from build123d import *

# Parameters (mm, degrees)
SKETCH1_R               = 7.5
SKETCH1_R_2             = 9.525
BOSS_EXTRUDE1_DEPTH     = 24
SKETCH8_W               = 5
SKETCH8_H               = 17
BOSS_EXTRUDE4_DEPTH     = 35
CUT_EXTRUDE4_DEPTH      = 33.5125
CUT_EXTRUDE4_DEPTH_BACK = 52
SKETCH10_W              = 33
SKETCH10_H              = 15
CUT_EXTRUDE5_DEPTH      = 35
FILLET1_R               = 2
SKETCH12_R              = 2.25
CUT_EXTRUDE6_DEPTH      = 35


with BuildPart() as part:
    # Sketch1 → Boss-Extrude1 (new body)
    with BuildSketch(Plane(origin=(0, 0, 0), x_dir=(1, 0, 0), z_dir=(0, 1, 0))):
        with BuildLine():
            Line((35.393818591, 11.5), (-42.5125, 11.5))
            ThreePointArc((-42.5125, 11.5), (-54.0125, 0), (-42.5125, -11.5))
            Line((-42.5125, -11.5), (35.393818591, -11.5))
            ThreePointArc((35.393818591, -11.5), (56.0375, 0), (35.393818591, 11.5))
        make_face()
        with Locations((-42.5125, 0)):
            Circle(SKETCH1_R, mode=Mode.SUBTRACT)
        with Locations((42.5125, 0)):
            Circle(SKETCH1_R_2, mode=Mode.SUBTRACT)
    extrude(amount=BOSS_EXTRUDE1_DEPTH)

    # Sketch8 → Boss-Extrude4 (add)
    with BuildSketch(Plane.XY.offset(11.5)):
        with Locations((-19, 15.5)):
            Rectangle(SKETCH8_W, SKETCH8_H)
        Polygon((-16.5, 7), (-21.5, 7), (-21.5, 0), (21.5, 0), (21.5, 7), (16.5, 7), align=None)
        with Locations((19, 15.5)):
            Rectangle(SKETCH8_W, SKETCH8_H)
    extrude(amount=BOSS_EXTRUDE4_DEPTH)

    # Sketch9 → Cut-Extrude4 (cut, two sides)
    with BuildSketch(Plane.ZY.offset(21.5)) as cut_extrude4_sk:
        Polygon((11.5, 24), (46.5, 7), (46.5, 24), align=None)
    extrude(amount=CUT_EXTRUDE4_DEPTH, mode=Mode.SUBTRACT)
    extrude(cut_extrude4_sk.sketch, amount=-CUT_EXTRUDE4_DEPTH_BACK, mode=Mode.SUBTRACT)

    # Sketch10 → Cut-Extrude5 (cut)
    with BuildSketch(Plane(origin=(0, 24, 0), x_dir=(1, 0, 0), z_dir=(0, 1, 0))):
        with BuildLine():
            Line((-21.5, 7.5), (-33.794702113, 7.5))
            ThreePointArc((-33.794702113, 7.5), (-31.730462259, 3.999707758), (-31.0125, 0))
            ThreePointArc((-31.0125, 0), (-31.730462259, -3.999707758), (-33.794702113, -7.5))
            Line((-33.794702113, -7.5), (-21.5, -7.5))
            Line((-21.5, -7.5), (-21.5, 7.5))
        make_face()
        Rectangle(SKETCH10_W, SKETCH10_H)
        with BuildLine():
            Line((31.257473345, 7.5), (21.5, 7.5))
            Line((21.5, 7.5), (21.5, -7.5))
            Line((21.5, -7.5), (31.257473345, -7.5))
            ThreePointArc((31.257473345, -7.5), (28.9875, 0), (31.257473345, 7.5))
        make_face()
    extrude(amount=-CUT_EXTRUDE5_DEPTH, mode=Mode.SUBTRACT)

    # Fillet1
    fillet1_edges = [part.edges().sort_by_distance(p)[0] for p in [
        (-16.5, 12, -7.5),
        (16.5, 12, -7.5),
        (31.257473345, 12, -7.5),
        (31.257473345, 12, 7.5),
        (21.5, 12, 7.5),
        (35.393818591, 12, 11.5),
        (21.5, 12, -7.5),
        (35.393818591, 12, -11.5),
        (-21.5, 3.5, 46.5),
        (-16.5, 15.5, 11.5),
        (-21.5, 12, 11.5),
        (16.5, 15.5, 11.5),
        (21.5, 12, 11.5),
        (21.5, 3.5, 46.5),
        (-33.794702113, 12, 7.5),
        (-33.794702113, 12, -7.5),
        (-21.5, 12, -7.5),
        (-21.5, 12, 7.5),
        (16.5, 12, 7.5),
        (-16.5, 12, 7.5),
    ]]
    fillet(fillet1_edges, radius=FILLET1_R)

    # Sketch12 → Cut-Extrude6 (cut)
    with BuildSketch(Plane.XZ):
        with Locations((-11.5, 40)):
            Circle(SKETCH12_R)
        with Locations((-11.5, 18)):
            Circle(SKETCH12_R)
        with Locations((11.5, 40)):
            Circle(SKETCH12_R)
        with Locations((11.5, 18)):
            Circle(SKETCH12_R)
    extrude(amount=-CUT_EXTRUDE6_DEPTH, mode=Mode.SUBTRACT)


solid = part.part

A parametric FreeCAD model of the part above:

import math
import FreeCAD as App
import Part
import Sketcher
from FreeCAD import Vector


def edges_at(feature, points):
    """Names of the edges that pass closest to the given points."""
    edges = feature.Shape.Edges
    near = lambda p: min(range(len(edges)), key=lambda i: edges[i].distToShape(Part.Vertex(*p))[0])
    return sorted({f"Edge{near(p) + 1}" for p in points})

doc = App.newDocument("Part")
body = doc.addObject("PartDesign::Body", "Body")

# Sketch on XZ plane
sketch1 = body.newObject("Sketcher::SketchObject", "Sketch")
sketch1.AttachmentSupport = (doc.getObject("XZ_Plane"), [""])
sketch1.MapMode = "FlatFace"
sketch1.addGeometry([
    Part.LineSegment(Vector(35, -12, 0), Vector(-43, -12, 0)),  # 0
    Part.ArcOfCircle(Part.Circle(Vector(-43, 0, 0), Vector(0, 0, 1), 12), math.radians(90), math.radians(270)),  # 1
    Part.LineSegment(Vector(-43, 12, 0), Vector(35, 12, 0)),  # 2
    Part.ArcOfCircle(Part.Circle(Vector(43, 0, 0), Vector(0, 0, 1), 14), math.radians(-122), math.radians(122)),  # 3
    Part.Circle(Vector(-43, 0, 0), Vector(0, 0, 1), 8),  # 4
    Part.Circle(Vector(43, 0, 0), Vector(0, 0, 1), 10),  # 5
], False)
sketch1.addConstraint([
    Sketcher.Constraint("Tangent", 0, 2, 1, 2),
    Sketcher.Constraint("Tangent", 1, 1, 2, 1),
    Sketcher.Constraint("Coincident", 2, 2, 3, 2),
    Sketcher.Constraint("Coincident", 3, 1, 0, 1),
    Sketcher.Constraint("Horizontal", 0),
    Sketcher.Constraint("Horizontal", 2),
    Sketcher.Constraint("Coincident", 4, 3, 1, 3),
    Sketcher.Constraint("Coincident", 5, 3, 3, 3),
    Sketcher.Constraint("Symmetric", 1, 3, 3, 3, -1, 1),
    Sketcher.Constraint("PointOnObject", 1, 3, -1),
    Sketcher.Constraint("Diameter", 4, 15.0),
    Sketcher.Constraint("Radius", 1, 11.5),
    Sketcher.Constraint("Diameter", 5, 19.05),
    Sketcher.Constraint("Radius", 3, 13.525),
    Sketcher.Constraint("DistanceX", 1, 3, 3, 3, 85.025),
])
pad1 = body.newObject("PartDesign::Pad", "Pad")
pad1.Profile = sketch1
pad1.Length = 24
pad1.Reversed = True

# Sketch on XY plane
sketch2 = body.newObject("Sketcher::SketchObject", "Sketch001")
sketch2.AttachmentSupport = (doc.getObject("XY_Plane"), [""])
sketch2.MapMode = "FlatFace"
sketch2.AttachmentOffset = App.Placement(Vector(0, 0, 11.5), App.Rotation())
sketch2.addGeometry([
    Part.LineSegment(Vector(-22, 24, 0), Vector(-22, 0, 0)),  # 0
    Part.LineSegment(Vector(-22, 0, 0), Vector(22, 0, 0)),  # 1
    Part.LineSegment(Vector(22, 0, 0), Vector(22, 24, 0)),  # 2
    Part.LineSegment(Vector(22, 24, 0), Vector(16, 24, 0)),  # 3
    Part.LineSegment(Vector(16, 24, 0), Vector(16, 7, 0)),  # 4
    Part.LineSegment(Vector(16, 7, 0), Vector(-16, 7, 0)),  # 5
    Part.LineSegment(Vector(-16, 7, 0), Vector(-16, 24, 0)),  # 6
    Part.LineSegment(Vector(-16, 24, 0), Vector(-22, 24, 0)),  # 7
], False)
sketch2.addConstraint([
    Sketcher.Constraint("Coincident", 0, 2, 1, 1),
    Sketcher.Constraint("Coincident", 1, 2, 2, 1),
    Sketcher.Constraint("Coincident", 2, 2, 3, 1),
    Sketcher.Constraint("Coincident", 3, 2, 4, 1),
    Sketcher.Constraint("Coincident", 4, 2, 5, 1),
    Sketcher.Constraint("Coincident", 5, 2, 6, 1),
    Sketcher.Constraint("Coincident", 6, 2, 7, 1),
    Sketcher.Constraint("Coincident", 7, 2, 0, 1),
    Sketcher.Constraint("Vertical", 0),
    Sketcher.Constraint("Horizontal", 1),
    Sketcher.Constraint("Vertical", 2),
    Sketcher.Constraint("Horizontal", 3),
    Sketcher.Constraint("Vertical", 4),
    Sketcher.Constraint("Horizontal", 5),
    Sketcher.Constraint("Vertical", 6),
    Sketcher.Constraint("Horizontal", 7),
    Sketcher.Constraint("Symmetric", 0, 2, 1, 2, -1, 1),
    Sketcher.Constraint("Symmetric", 3, 2, 6, 2, -2),
    Sketcher.Constraint("DistanceX", 1, 1, 1, 2, 43.0),
    Sketcher.Constraint("DistanceX", 3, 2, 3, 1, 5.0),
    Sketcher.Constraint("DistanceY", 0, 2, 0, 1, 24.0),
    Sketcher.Constraint("DistanceY", 4, 2, 4, 1, 17.0),
])
pad2 = body.newObject("PartDesign::Pad", "Pad001")
pad2.Profile = sketch2
pad2.Length = 35

# Sketch on YZ plane
sketch3 = body.newObject("Sketcher::SketchObject", "Sketch002")
sketch3.AttachmentSupport = (doc.getObject("YZ_Plane"), [""])
sketch3.MapMode = "FlatFace"
sketch3.AttachmentOffset = App.Placement(Vector(0, 0, -21.5), App.Rotation())
sketch3.addGeometry([
    Part.LineSegment(Vector(24, 12, 0), Vector(7, 46, 0)),
    Part.LineSegment(Vector(7, 46, 0), Vector(24, 46, 0)),
    Part.LineSegment(Vector(24, 46, 0), Vector(24, 12, 0)),
], False)
sketch3.addConstraint([
    Sketcher.Constraint("Coincident", 0, 2, 1, 1),
    Sketcher.Constraint("Coincident", 1, 2, 2, 1),
    Sketcher.Constraint("Coincident", 2, 2, 0, 1),
    Sketcher.Constraint("Horizontal", 1),
    Sketcher.Constraint("Vertical", 2),
    Sketcher.Constraint("DistanceX", 1, 1, 1, 2, 17.0),
    Sketcher.Constraint("DistanceY", 2, 2, 2, 1, 35.0),
    Sketcher.Constraint("DistanceX", -1, 1, 0, 2, 7.0),
    Sketcher.Constraint("DistanceY", -1, 1, 0, 2, 46.5),
])
pocket1 = body.newObject("PartDesign::Pocket", "Pocket")
pocket1.Profile = sketch3
pocket1.Type = "TwoLengths"
pocket1.Length = 33.5125
pocket1.Length2 = 52

# Sketch on XZ plane
sketch4 = body.newObject("Sketcher::SketchObject", "Sketch003")
sketch4.AttachmentSupport = (doc.getObject("XZ_Plane"), [""])
sketch4.MapMode = "FlatFace"
sketch4.AttachmentOffset = App.Placement(Vector(0, 0, -24), App.Rotation())
sketch4.addGeometry([
    Part.LineSegment(Vector(-22, -8, 0), Vector(-34, -8, 0)),  # 0
    Part.ArcOfCircle(Part.Circle(Vector(-43, 0, 0), Vector(0, 0, 1), 12), math.radians(-41), math.radians(0)),  # 1
    Part.ArcOfCircle(Part.Circle(Vector(-43, 0, 0), Vector(0, 0, 1), 12), math.radians(0), math.radians(41)),  # 2
    Part.LineSegment(Vector(-34, 8, 0), Vector(-22, 8, 0)),  # 3
    Part.LineSegment(Vector(-22, 8, 0), Vector(-22, -8, 0)),  # 4
    Part.LineSegment(Vector(-16, -8, 0), Vector(-16, 8, 0)),  # 5
    Part.LineSegment(Vector(-16, 8, 0), Vector(16, 8, 0)),  # 6
    Part.LineSegment(Vector(16, 8, 0), Vector(16, -8, 0)),  # 7
    Part.LineSegment(Vector(16, -8, 0), Vector(-16, -8, 0)),  # 8
    Part.LineSegment(Vector(31, -8, 0), Vector(22, -8, 0)),  # 9
    Part.LineSegment(Vector(22, -8, 0), Vector(22, 8, 0)),  # 10
    Part.LineSegment(Vector(22, 8, 0), Vector(31, 8, 0)),  # 11
    Part.ArcOfCircle(Part.Circle(Vector(43, 0, 0), Vector(0, 0, 1), 14), math.radians(146), math.radians(214)),  # 12
], False)
sketch4.addConstraint([
    Sketcher.Constraint("Coincident", 0, 2, 1, 1),
    Sketcher.Constraint("Tangent", 1, 2, 2, 1),
    Sketcher.Constraint("Coincident", 2, 2, 3, 1),
    Sketcher.Constraint("Coincident", 3, 2, 4, 1),
    Sketcher.Constraint("Coincident", 4, 2, 0, 1),
    Sketcher.Constraint("Coincident", 5, 2, 6, 1),
    Sketcher.Constraint("Coincident", 6, 2, 7, 1),
    Sketcher.Constraint("Coincident", 7, 2, 8, 1),
    Sketcher.Constraint("Coincident", 8, 2, 5, 1),
    Sketcher.Constraint("Coincident", 9, 2, 10, 1),
    Sketcher.Constraint("Coincident", 10, 2, 11, 1),
    Sketcher.Constraint("Coincident", 11, 2, 12, 1),
    Sketcher.Constraint("Coincident", 12, 2, 9, 1),
    Sketcher.Constraint("Horizontal", 0),
    Sketcher.Constraint("Horizontal", 3),
    Sketcher.Constraint("Vertical", 4),
    Sketcher.Constraint("Vertical", 5),
    Sketcher.Constraint("Horizontal", 6),
    Sketcher.Constraint("Vertical", 7),
    Sketcher.Constraint("Horizontal", 8),
    Sketcher.Constraint("Horizontal", 9),
    Sketcher.Constraint("Vertical", 10),
    Sketcher.Constraint("Horizontal", 11),
    Sketcher.Constraint("Equal", 1, 2),
    Sketcher.Constraint("Symmetric", 1, 3, 12, 3, -1, 1),
    Sketcher.Constraint("Symmetric", 5, 2, 7, 2, -1, 1),
    Sketcher.Constraint("Symmetric", 3, 2, 9, 2, -1, 1),
    Sketcher.Constraint("Symmetric", 0, 2, 2, 2, -1),
    Sketcher.Constraint("PointOnObject", 1, 2, -1),
    Sketcher.Constraint("Horizontal", 3, 2, 5, 2),
    Sketcher.Constraint("Horizontal", 6, 2, 10, 2),
    Sketcher.Constraint("Radius", 1, 11.5),
    Sketcher.Constraint("DistanceX", 6, 1, 6, 2, 33.0),
    Sketcher.Constraint("DistanceY", 4, 2, 4, 1, 15.0),
    Sketcher.Constraint("Radius", 12, 13.525),
    Sketcher.Constraint("DistanceX", 3, 2, 5, 2, 5.0),
    Sketcher.Constraint("DistanceX", 1, 3, 12, 3, 85.025),
])
pocket2 = body.newObject("PartDesign::Pocket", "Pocket001")
pocket2.Profile = sketch4
pocket2.Length = 35
pocket2.Reversed = True
doc.recompute()

fillet = body.newObject("PartDesign::Fillet", "Fillet")
fillet.Base = (pocket2, edges_at(pocket2, [
    (-16.5, 12, -7.5),
    (16.5, 12, -7.5),
    (31.257, 12, -7.5),
    (31.257, 12, 7.5),
    (21.5, 12, 7.5),
    (35.394, 12, 11.5),
    (21.5, 12, -7.5),
    (35.394, 12, -11.5),
    (-21.5, 3.5, 46.5),
    (-16.5, 15.5, 11.5),
    (-21.5, 12, 11.5),
    (16.5, 15.5, 11.5),
    (21.5, 12, 11.5),
    (21.5, 3.5, 46.5),
    (-33.795, 12, 7.5),
    (-33.795, 12, -7.5),
    (-21.5, 12, -7.5),
    (-21.5, 12, 7.5),
    (16.5, 12, 7.5),
    (-16.5, 12, 7.5),
]))
fillet.Radius = 2

# Sketch on XZ plane
sketch5 = body.newObject("Sketcher::SketchObject", "Sketch004")
sketch5.AttachmentSupport = (doc.getObject("XZ_Plane"), [""])
sketch5.MapMode = "FlatFace"
sketch5.addGeometry([
    Part.Circle(Vector(-11.5, 40, 0), Vector(0, 0, 1), 2.2),
    Part.Circle(Vector(-11.5, 18, 0), Vector(0, 0, 1), 2.2),
    Part.Circle(Vector(11.5, 40, 0), Vector(0, 0, 1), 2.2),
    Part.Circle(Vector(11.5, 18, 0), Vector(0, 0, 1), 2.2),
], False)
sketch5.addConstraint([
    Sketcher.Constraint("Equal", 0, 1),
    Sketcher.Constraint("Equal", 1, 2),
    Sketcher.Constraint("Equal", 2, 3),
    Sketcher.Constraint("Symmetric", 0, 3, 2, 3, -2),
    Sketcher.Constraint("Symmetric", 1, 3, 3, 3, -2),
    Sketcher.Constraint("Vertical", 0, 3, 1, 3),
    Sketcher.Constraint("Diameter", 0, 4.5),
    Sketcher.Constraint("DistanceY", -1, 1, 0, 3, 40.0),
    Sketcher.Constraint("DistanceY", -1, 1, 1, 3, 18.0),
    Sketcher.Constraint("DistanceX", 0, 3, 2, 3, 23.0),
])
pocket3 = body.newObject("PartDesign::Pocket", "Pocket002")
pocket3.Profile = sketch5
pocket3.Length = 35

doc.recompute()
